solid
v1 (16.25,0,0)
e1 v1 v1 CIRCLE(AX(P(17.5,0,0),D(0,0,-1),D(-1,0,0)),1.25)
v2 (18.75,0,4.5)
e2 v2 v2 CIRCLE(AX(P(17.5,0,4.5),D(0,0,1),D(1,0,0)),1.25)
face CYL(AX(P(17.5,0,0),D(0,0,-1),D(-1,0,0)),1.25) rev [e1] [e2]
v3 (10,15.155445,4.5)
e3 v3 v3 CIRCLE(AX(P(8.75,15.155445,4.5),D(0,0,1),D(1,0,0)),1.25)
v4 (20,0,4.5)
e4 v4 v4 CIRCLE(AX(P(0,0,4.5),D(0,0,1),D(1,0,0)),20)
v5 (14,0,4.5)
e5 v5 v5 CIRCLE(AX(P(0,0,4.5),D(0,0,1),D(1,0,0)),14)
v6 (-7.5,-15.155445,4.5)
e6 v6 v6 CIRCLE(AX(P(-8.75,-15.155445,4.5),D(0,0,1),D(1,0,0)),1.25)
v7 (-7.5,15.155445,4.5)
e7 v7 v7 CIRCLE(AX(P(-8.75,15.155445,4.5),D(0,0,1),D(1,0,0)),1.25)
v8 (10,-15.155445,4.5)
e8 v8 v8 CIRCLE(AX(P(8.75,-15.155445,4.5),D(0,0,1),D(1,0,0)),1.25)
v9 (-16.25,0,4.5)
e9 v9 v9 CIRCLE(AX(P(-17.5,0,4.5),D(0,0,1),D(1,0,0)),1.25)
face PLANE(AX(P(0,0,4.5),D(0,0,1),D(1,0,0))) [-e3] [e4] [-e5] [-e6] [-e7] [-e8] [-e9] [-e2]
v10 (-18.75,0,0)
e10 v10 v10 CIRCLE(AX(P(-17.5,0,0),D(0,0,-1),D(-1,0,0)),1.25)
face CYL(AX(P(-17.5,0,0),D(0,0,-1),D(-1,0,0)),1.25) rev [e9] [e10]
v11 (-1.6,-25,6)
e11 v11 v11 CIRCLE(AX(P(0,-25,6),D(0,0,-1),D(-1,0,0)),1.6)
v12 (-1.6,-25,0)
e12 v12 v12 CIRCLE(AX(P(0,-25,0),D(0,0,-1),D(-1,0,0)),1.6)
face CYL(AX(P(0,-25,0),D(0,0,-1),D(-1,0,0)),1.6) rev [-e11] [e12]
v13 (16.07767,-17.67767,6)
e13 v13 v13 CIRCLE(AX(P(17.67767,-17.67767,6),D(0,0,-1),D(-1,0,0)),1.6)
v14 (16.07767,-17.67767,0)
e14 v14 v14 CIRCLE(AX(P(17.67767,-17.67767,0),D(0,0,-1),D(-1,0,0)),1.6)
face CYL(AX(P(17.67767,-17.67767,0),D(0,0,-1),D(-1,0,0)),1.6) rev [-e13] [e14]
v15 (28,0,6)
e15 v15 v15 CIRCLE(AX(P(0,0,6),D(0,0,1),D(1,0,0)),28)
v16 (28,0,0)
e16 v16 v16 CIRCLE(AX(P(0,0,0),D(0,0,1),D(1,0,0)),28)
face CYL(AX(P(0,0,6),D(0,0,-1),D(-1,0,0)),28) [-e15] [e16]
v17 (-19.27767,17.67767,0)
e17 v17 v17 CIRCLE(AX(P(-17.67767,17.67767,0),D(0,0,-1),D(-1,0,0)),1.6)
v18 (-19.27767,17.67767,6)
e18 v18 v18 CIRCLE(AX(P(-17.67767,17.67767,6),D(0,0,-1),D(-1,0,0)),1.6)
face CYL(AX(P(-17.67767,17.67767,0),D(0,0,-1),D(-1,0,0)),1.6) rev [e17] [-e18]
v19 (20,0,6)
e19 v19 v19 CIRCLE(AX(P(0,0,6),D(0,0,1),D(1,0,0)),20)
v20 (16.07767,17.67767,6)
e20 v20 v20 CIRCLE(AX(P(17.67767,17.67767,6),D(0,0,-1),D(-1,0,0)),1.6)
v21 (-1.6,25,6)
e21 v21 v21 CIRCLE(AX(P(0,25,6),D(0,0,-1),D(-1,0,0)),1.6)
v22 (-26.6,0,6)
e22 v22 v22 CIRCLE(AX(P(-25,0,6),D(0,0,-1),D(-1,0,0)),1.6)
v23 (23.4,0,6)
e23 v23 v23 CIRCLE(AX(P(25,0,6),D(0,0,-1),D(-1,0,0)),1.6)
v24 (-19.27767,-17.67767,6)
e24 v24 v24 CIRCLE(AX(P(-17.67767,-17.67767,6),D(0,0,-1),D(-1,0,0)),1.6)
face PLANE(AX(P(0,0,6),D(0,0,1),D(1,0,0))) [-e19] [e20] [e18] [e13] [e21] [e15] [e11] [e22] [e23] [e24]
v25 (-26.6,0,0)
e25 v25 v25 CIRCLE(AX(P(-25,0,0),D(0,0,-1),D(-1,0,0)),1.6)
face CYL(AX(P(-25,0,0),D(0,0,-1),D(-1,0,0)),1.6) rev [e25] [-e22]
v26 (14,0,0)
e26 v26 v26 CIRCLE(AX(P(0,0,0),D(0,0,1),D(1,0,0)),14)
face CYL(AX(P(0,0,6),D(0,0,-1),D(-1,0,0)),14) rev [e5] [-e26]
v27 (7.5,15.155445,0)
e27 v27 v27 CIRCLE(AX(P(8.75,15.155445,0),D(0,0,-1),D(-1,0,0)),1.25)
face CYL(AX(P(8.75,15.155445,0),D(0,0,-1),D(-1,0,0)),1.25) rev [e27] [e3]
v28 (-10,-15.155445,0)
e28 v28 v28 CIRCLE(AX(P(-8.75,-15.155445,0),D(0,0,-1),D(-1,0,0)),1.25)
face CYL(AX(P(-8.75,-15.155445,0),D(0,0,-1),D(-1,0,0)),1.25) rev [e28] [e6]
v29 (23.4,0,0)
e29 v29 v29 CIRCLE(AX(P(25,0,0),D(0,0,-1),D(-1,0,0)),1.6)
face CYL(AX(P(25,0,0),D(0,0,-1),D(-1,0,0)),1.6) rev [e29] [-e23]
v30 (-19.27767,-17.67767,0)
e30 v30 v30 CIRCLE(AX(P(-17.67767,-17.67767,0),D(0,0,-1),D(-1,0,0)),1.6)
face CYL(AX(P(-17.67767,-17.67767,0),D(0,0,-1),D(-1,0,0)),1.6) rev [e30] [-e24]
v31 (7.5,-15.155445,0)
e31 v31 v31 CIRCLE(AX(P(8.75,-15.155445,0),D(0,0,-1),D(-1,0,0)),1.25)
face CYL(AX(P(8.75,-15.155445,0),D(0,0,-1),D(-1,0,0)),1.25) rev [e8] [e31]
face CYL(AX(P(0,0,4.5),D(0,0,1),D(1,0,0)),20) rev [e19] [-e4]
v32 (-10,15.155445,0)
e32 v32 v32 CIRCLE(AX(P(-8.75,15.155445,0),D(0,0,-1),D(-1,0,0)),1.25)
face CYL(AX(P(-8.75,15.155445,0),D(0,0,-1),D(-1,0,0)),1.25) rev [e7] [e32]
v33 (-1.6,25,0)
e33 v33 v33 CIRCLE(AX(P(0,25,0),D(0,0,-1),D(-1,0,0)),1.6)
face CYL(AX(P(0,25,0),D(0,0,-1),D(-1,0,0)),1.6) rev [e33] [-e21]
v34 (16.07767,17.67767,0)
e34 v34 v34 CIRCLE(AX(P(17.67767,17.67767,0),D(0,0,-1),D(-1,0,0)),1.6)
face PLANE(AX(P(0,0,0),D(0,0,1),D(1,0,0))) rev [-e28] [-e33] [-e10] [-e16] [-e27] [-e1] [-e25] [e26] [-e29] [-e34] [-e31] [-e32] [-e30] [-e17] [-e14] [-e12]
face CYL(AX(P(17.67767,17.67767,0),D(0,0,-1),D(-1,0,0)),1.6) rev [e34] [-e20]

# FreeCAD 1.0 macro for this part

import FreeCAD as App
import Part
import Sketcher
from FreeCAD import Vector

doc = App.newDocument("Part")
body = doc.addObject("PartDesign::Body", "Body")

sketch1 = body.newObject("Sketcher::SketchObject", "Sketch")
sketch1.AttachmentSupport = (doc.getObject("XY_Plane"), [""])
sketch1.MapMode = "FlatFace"
sketch1.addGeometry(Part.Circle(Vector(0, 0, 0), Vector(0, 0, 1), 28), False)
sketch1.addGeometry(Part.Circle(Vector(0, 0, 0), Vector(0, 0, 1), 14), False)
sketch1.addConstraint(Sketcher.Constraint("Coincident", 0, 3, -1, 1))
sketch1.addConstraint(Sketcher.Constraint("Coincident", 1, 3, -1, 1))
sketch1.addConstraint(Sketcher.Constraint("Diameter", 0, 56.0))
sketch1.addConstraint(Sketcher.Constraint("Diameter", 1, 28.0))
pad1 = body.newObject("PartDesign::Pad", "Pad")
pad1.Profile = sketch1
pad1.Length = 6

sketch2 = body.newObject("Sketcher::SketchObject", "Sketch001")
sketch2.AttachmentSupport = (doc.getObject("XY_Plane"), [""])
sketch2.MapMode = "FlatFace"
sketch2.AttachmentOffset = App.Placement(Vector(0, 0, 4.5), App.Rotation())
sketch2.addGeometry(Part.Circle(Vector(0, 0, 0), Vector(0, 0, 1), 20), False)
sketch2.addGeometry(Part.Circle(Vector(0, 0, 0), Vector(0, 0, 1), 14), False)
sketch2.addConstraint(Sketcher.Constraint("Coincident", 0, 3, -1, 1))
sketch2.addConstraint(Sketcher.Constraint("Coincident", 1, 3, -1, 1))
sketch2.addConstraint(Sketcher.Constraint("Diameter", 0, 40.0))
sketch2.addConstraint(Sketcher.Constraint("Diameter", 1, 28.0))
pocket1 = body.newObject("PartDesign::Pocket", "Pocket")
pocket1.Profile = sketch2
pocket1.Length = 1.5
pocket1.Reversed = True

sketch3 = body.newObject("Sketcher::SketchObject", "Sketch002")
sketch3.AttachmentSupport = (doc.getObject("XY_Plane"), [""])
sketch3.MapMode = "FlatFace"
sketch3.addGeometry(Part.Circle(Vector(17.5, 0, 0), Vector(0, 0, 1), 1.2), False)
sketch3.addGeometry(Part.Circle(Vector(8.8, -15.2, 0), Vector(0, 0, 1), 1.2), False)
sketch3.addGeometry(Part.Circle(Vector(-8.8, -15.2, 0), Vector(0, 0, 1), 1.2), False)
sketch3.addGeometry(Part.Circle(Vector(-17.5, 0, 0), Vector(0, 0, 1), 1.2), False)
sketch3.addGeometry(Part.Circle(Vector(-8.8, 15.2, 0), Vector(0, 0, 1), 1.2), False)
sketch3.addGeometry(Part.Circle(Vector(8.8, 15.2, 0), Vector(0, 0, 1), 1.2), False)
sketch3.addConstraint(Sketcher.Constraint("Equal", 0, 1))
sketch3.addConstraint(Sketcher.Constraint("Equal", 1, 2))
sketch3.addConstraint(Sketcher.Constraint("Equal", 2, 3))
sketch3.addConstraint(Sketcher.Constraint("Equal", 3, 4))
sketch3.addConstraint(Sketcher.Constraint("Equal", 4, 5))
sketch3.addConstraint(Sketcher.Constraint("Symmetric", 0, 3, 3, 3, -1, 1))
sketch3.addConstraint(Sketcher.Constraint("Symmetric", 1, 3, 4, 3, -1, 1))
sketch3.addConstraint(Sketcher.Constraint("Symmetric", 2, 3, 5, 3, -1, 1))
sketch3.addConstraint(Sketcher.Constraint("Symmetric", 1, 3, 2, 3, -2))
sketch3.addConstraint(Sketcher.Constraint("PointOnObject", 0, 3, -1))
sketch3.addConstraint(Sketcher.Constraint("Diameter", 0, 2.5))
sketch3.addConstraint(Sketcher.Constraint("DistanceX", 3, 3, 0, 3, 35.0))
sketch3.addConstraint(Sketcher.Constraint("DistanceX", 2, 3, 1, 3, 17.5))
sketch3.addConstraint(Sketcher.Constraint("DistanceY", 2, 3, 4, 3, 30.310889))
doc.recompute()
hole = body.newObject("PartDesign::Hole", "Hole")
hole.Profile = sketch3
hole.ThreadType = "None"
hole.Diameter = 2.5
hole.DepthType = "ThroughAll"
hole.Reversed = True

sketch4 = body.newObject("Sketcher::SketchObject", "Sketch003")
sketch4.AttachmentSupport = (doc.getObject("XY_Plane"), [""])
sketch4.MapMode = "FlatFace"
sketch4.addGeometry(Part.Circle(Vector(0, 25, 0), Vector(0, 0, 1), 1.6), False)
sketch4.addGeometry(Part.Circle(Vector(17.7, 17.7, 0), Vector(0, 0, 1), 1.6), False)
sketch4.addGeometry(Part.Circle(Vector(25, 0, 0), Vector(0, 0, 1), 1.6), False)
sketch4.addGeometry(Part.Circle(Vector(17.7, -17.7, 0), Vector(0, 0, 1), 1.6), False)
sketch4.addGeometry(Part.Circle(Vector(0, -25, 0), Vector(0, 0, 1), 1.6), False)
sketch4.addGeometry(Part.Circle(Vector(-17.7, -17.7, 0), Vector(0, 0, 1), 1.6), False)
sketch4.addGeometry(Part.Circle(Vector(-25, 0, 0), Vector(0, 0, 1), 1.6), False)
sketch4.addGeometry(Part.Circle(Vector(-17.7, 17.7, 0), Vector(0, 0, 1), 1.6), False)
sketch4.addConstraint(Sketcher.Constraint("Equal", 0, 1))
sketch4.addConstraint(Sketcher.Constraint("Equal", 1, 2))
sketch4.addConstraint(Sketcher.Constraint("Equal", 2, 3))
sketch4.addConstraint(Sketcher.Constraint("Equal", 3, 4))
sketch4.addConstraint(Sketcher.Constraint("Equal", 4, 5))
sketch4.addConstraint(Sketcher.Constraint("Equal", 5, 6))
sketch4.addConstraint(Sketcher.Constraint("Equal", 6, 7))
sketch4.addConstraint(Sketcher.Constraint("Symmetric", 0, 3, 4, 3, -1, 1))
sketch4.addConstraint(Sketcher.Constraint("Symmetric", 1, 3, 5, 3, -1, 1))
sketch4.addConstraint(Sketcher.Constraint("Symmetric", 2, 3, 6, 3, -1, 1))
sketch4.addConstraint(Sketcher.Constraint("Symmetric", 3, 3, 7, 3, -1, 1))
sketch4.addConstraint(Sketcher.Constraint("Symmetric", 3, 3, 5, 3, -2))
sketch4.addConstraint(Sketcher.Constraint("PointOnObject", 0, 3, -2))
sketch4.addConstraint(Sketcher.Constraint("PointOnObject", 2, 3, -1))
sketch4.addConstraint(Sketcher.Constraint("Diameter", 0, 3.2))
sketch4.addConstraint(Sketcher.Constraint("DistanceY", -1, 1, 0, 3, 25.0))
sketch4.addConstraint(Sketcher.Constraint("DistanceX", -1, 1, 2, 3, 25.0))
sketch4.addConstraint(Sketcher.Constraint("DistanceX", -1, 1, 1, 3, 17.67767))
sketch4.addConstraint(Sketcher.Constraint("DistanceY", -1, 1, 1, 3, 17.67767))
doc.recompute()
hole2 = body.newObject("PartDesign::Hole", "Hole001")
hole2.Profile = sketch4
hole2.ThreadType = "None"
hole2.Diameter = 3.2
hole2.DepthType = "ThroughAll"
hole2.Reversed = True

doc.recompute()
